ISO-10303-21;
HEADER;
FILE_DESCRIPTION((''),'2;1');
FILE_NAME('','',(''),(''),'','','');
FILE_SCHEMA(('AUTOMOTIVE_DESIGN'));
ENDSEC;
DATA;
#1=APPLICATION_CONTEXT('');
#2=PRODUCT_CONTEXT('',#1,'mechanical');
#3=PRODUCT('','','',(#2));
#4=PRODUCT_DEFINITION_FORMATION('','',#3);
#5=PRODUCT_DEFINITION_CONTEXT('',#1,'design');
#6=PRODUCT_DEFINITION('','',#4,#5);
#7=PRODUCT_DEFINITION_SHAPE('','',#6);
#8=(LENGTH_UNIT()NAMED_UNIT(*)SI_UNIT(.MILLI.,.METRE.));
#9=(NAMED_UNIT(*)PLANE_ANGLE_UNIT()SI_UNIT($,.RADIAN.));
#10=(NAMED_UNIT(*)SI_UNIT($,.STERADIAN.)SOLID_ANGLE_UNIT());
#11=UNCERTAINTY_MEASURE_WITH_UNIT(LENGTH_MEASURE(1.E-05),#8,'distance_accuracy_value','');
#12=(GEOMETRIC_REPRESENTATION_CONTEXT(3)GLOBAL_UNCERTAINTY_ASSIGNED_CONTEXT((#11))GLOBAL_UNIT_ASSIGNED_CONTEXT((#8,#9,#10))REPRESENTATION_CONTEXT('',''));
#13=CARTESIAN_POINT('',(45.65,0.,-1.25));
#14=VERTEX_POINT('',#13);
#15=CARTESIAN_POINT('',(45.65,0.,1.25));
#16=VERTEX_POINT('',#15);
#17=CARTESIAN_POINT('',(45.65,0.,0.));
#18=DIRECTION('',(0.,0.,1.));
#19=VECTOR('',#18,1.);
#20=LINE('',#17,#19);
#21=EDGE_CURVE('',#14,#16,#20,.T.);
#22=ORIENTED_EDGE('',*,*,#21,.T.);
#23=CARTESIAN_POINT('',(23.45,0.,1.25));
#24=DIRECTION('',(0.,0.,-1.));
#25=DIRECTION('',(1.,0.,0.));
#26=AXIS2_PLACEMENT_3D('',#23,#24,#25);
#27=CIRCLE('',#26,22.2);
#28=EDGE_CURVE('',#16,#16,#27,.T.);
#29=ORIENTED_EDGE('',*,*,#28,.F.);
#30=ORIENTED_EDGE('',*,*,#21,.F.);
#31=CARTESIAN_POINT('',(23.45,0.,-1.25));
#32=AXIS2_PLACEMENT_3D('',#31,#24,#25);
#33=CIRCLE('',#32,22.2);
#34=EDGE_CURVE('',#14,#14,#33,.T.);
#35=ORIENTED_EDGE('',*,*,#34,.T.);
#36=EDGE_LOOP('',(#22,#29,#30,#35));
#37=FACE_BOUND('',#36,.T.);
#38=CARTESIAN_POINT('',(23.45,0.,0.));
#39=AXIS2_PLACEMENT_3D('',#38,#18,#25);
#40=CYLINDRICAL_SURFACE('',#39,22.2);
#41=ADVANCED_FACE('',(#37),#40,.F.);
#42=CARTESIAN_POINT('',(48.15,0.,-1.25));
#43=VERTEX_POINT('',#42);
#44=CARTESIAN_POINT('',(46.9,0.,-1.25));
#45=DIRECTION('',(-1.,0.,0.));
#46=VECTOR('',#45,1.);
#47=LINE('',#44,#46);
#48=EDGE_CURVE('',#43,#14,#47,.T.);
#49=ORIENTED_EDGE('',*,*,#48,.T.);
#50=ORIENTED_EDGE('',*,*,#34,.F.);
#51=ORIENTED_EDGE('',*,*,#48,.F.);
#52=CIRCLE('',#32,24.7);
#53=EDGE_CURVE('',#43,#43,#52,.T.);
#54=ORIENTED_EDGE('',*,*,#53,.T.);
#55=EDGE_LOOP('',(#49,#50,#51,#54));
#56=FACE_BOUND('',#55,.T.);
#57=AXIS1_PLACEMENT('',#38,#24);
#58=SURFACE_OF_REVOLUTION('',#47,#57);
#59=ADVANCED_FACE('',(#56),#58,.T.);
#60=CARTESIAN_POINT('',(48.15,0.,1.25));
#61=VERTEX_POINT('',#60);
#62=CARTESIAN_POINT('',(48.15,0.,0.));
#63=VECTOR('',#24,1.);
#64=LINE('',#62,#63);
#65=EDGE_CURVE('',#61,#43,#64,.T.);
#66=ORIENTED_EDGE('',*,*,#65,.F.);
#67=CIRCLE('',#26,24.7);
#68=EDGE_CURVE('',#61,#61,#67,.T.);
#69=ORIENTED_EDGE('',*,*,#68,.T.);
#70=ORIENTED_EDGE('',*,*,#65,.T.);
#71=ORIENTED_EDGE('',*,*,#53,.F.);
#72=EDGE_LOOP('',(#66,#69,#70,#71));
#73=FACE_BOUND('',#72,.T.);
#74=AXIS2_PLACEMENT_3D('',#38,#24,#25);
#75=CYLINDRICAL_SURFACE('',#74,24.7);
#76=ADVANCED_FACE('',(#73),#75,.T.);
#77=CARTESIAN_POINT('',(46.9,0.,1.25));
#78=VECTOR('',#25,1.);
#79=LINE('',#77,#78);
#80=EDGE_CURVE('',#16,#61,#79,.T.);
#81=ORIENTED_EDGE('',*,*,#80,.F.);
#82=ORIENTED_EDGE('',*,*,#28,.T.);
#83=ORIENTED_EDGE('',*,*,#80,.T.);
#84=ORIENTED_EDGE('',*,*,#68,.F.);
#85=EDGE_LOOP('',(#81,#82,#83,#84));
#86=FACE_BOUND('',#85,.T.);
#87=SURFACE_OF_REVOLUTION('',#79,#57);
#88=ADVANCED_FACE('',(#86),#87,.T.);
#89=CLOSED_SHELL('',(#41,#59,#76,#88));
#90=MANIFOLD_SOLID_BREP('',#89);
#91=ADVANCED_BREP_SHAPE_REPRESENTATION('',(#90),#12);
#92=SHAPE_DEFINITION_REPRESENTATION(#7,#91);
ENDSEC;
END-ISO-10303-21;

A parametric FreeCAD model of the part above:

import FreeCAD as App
import Part
import Sketcher
from FreeCAD import Vector
Q = App.Units.Quantity

doc = App.newDocument("Part")
params = doc.addObject("Spreadsheet::Sheet", "Params")
for row, (alias, value) in enumerate([
    ("sketch1_width", "2.5 mm"),
    ("sketch2_diameter", "46.9 mm"),
], start=1):
    params.set(f"A{row}", alias)
    params.set(f"B{row}", "=" + value)
    params.setAlias(f"B{row}", alias)

body = doc.addObject("PartDesign::Body", "Body")

# Sketch on XZ plane
sketch1 = doc.addObject("Sketcher::SketchObject", "Sketch")
body.addObject(sketch1)
sketch1.AttachmentSupport = (doc.XZ_Plane, [""])
sketch1.MapMode = "FlatFace"
sketch1.addGeometry([
    Part.LineSegment(Vector(-1.2, 1.2, 0), Vector(-1.2, -1.2, 0)),
    Part.LineSegment(Vector(-1.2, -1.2, 0), Vector(1.2, -1.2, 0)),
    Part.LineSegment(Vector(1.2, -1.2, 0), Vector(1.2, 1.2, 0)),
    Part.LineSegment(Vector(1.2, 1.2, 0), Vector(-1.2, 1.2, 0)),
], False)
sketch1.addConstraint([
    Sketcher.Constraint("Coincident", 0, 2, 1, 1),
    Sketcher.Constraint("Coincident", 1, 2, 2, 1),
    Sketcher.Constraint("Coincident", 2, 2, 3, 1),
    Sketcher.Constraint("Coincident", 3, 2, 0, 1),
    Sketcher.Constraint("Vertical", 0),
    Sketcher.Constraint("Horizontal", 1),
    Sketcher.Constraint("Vertical", 2),
    Sketcher.Constraint("Horizontal", 3),
    Sketcher.Constraint("Symmetric", 0, 2, 2, 2, -1, 1),
    Sketcher.Constraint("Equal", 3, 0),
    Sketcher.Constraint("DistanceX", 1, 1, 1, 2, Q("2.5 mm")),
])
sketch1.setExpression("Constraints[10]", "Params.sketch1_width")

# Sketch on XY plane
sketch2 = doc.addObject("Sketcher::SketchObject", "Sketch001")
body.addObject(sketch2)
sketch2.AttachmentSupport = (doc.XY_Plane, [""])
sketch2.MapMode = "FlatFace"
sketch2.addGeometry(Part.Circle(Vector(23, 0, 0), Vector(0, 0, 1), 23), False)
sketch2.addConstraint([
    Sketcher.Constraint("PointOnObject", 0, 3, -1),
    Sketcher.Constraint("Diameter", 0, Q("46.9 mm")),
    Sketcher.Constraint("DistanceX", -1, 1, 0, 3, Q("23.45 mm")),
])
sketch2.setExpression("Constraints[1]", "Params.sketch2_diameter")
doc.recompute()

additivepipe = doc.addObject("PartDesign::AdditivePipe", "AdditivePipe")
body.addObject(additivepipe)
additivepipe.Profile = sketch1
additivepipe.Spine = (sketch2, ["Edge1"])

doc.recompute()
